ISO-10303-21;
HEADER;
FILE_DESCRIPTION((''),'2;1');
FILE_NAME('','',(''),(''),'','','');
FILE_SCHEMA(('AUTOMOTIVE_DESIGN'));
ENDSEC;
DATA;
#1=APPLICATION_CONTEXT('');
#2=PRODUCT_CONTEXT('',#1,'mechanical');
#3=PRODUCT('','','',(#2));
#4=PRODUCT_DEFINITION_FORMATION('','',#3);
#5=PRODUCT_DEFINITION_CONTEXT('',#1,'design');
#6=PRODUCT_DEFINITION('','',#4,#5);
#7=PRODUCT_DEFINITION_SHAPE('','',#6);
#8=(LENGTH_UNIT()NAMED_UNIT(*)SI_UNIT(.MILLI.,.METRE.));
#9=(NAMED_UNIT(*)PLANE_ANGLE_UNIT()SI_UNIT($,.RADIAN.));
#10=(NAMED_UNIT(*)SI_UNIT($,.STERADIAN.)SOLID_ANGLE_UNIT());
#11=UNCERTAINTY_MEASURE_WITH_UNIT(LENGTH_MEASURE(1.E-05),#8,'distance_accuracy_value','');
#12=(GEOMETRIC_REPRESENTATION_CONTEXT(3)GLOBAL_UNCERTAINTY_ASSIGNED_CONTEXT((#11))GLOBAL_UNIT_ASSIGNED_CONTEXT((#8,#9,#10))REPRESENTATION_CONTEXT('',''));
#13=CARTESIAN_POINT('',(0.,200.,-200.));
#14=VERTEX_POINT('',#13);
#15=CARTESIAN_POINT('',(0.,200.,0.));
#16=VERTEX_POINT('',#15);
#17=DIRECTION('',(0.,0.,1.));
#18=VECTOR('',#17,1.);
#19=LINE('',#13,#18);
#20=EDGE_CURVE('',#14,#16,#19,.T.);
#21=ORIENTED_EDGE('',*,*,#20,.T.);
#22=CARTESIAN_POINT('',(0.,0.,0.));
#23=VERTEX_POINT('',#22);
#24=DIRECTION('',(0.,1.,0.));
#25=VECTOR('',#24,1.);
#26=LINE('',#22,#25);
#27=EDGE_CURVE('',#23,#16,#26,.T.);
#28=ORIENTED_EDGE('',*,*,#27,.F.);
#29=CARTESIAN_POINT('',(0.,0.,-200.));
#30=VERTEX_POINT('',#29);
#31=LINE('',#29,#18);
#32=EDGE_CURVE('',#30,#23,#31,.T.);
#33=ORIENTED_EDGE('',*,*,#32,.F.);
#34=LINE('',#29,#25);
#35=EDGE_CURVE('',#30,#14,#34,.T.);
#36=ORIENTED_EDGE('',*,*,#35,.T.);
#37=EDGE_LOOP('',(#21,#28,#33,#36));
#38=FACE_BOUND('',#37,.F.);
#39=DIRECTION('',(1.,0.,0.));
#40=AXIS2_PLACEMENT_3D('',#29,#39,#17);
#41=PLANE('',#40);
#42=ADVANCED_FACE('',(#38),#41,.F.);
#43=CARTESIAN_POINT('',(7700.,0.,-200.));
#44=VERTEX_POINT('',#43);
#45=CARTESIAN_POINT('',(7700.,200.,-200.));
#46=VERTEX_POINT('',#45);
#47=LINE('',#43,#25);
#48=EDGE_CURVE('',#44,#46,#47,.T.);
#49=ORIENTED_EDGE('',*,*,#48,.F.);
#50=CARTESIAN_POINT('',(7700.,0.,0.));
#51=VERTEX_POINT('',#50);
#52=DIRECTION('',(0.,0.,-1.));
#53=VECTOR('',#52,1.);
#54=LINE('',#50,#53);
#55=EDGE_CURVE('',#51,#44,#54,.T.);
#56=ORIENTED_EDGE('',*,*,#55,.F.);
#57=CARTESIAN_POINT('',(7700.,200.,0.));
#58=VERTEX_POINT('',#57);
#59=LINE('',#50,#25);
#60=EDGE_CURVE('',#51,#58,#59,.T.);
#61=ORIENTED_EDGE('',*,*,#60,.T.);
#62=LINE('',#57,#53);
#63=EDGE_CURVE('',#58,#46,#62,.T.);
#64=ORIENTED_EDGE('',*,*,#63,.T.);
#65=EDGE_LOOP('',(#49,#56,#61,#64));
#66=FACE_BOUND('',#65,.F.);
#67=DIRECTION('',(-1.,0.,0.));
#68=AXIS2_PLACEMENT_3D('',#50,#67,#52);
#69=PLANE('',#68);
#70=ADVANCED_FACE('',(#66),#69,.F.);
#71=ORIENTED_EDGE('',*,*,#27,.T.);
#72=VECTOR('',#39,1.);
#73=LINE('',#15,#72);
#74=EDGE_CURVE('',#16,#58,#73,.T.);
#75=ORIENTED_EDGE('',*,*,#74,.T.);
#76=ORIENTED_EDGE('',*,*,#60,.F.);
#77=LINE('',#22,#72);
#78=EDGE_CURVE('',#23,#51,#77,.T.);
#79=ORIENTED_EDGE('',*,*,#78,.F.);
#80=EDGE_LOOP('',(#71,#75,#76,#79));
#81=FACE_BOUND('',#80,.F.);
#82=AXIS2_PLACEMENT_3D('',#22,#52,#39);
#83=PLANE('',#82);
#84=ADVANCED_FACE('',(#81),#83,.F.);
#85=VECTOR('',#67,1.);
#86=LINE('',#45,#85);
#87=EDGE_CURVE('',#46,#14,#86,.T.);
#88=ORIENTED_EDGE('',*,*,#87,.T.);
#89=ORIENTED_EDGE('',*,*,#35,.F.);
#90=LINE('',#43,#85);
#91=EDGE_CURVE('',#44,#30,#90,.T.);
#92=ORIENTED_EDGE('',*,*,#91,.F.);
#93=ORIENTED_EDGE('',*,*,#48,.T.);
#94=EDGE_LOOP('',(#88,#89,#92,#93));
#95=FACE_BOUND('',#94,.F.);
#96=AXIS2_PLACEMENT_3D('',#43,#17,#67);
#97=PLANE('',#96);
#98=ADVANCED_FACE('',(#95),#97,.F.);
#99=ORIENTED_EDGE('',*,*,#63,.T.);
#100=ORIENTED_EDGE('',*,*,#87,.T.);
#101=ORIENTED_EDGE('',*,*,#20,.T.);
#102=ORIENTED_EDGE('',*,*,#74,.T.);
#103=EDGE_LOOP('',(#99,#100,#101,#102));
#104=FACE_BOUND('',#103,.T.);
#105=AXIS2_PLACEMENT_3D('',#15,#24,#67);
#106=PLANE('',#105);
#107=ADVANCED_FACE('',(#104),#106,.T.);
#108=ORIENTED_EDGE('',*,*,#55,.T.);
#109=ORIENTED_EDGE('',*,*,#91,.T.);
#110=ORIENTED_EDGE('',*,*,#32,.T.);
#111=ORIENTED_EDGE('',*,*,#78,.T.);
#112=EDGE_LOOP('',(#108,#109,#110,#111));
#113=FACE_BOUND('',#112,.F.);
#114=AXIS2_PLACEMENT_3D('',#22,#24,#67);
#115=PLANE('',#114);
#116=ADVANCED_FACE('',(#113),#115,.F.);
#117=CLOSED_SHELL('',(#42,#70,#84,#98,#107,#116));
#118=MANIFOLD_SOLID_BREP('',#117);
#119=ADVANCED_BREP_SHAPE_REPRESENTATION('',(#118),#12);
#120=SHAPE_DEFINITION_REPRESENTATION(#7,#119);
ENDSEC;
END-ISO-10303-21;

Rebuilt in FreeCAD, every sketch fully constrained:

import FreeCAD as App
import Part
import Sketcher
from FreeCAD import Vector

doc = App.newDocument("Part")
body = doc.addObject("PartDesign::Body", "Body")

sketch1 = doc.addObject("Sketcher::SketchObject", "Sketch")
body.addObject(sketch1)
sketch1.AttachmentSupport = (doc.XZ_Plane, [""])
sketch1.MapMode = "FlatFace"
sketch1.addGeometry([
    Part.LineSegment(Vector(0, -200, 0), Vector(0, 0, 0)),
    Part.LineSegment(Vector(0, 0, 0), Vector(7700, 0, 0)),
    Part.LineSegment(Vector(7700, 0, 0), Vector(7700, -200, 0)),
    Part.LineSegment(Vector(7700, -200, 0), Vector(0, -200, 0)),
], False)
sketch1.addConstraint([
    Sketcher.Constraint("Coincident", 0, 2, 1, 1),
    Sketcher.Constraint("Coincident", 1, 2, 2, 1),
    Sketcher.Constraint("Coincident", 2, 2, 3, 1),
    Sketcher.Constraint("Coincident", 3, 2, 0, 1),
    Sketcher.Constraint("Vertical", 0),
    Sketcher.Constraint("Horizontal", 1),
    Sketcher.Constraint("Vertical", 2),
    Sketcher.Constraint("Horizontal", 3),
    Sketcher.Constraint("Coincident", 0, 2, -1, 1),
    Sketcher.Constraint("DistanceX", 1, 1, 1, 2, 7700.0),
    Sketcher.Constraint("DistanceY", 0, 1, 0, 2, 200.0),
])
pad1 = doc.addObject("PartDesign::Pad", "Pad")
body.addObject(pad1)
pad1.Profile = sketch1
pad1.Length = 200
pad1.Reversed = True

doc.recompute()
